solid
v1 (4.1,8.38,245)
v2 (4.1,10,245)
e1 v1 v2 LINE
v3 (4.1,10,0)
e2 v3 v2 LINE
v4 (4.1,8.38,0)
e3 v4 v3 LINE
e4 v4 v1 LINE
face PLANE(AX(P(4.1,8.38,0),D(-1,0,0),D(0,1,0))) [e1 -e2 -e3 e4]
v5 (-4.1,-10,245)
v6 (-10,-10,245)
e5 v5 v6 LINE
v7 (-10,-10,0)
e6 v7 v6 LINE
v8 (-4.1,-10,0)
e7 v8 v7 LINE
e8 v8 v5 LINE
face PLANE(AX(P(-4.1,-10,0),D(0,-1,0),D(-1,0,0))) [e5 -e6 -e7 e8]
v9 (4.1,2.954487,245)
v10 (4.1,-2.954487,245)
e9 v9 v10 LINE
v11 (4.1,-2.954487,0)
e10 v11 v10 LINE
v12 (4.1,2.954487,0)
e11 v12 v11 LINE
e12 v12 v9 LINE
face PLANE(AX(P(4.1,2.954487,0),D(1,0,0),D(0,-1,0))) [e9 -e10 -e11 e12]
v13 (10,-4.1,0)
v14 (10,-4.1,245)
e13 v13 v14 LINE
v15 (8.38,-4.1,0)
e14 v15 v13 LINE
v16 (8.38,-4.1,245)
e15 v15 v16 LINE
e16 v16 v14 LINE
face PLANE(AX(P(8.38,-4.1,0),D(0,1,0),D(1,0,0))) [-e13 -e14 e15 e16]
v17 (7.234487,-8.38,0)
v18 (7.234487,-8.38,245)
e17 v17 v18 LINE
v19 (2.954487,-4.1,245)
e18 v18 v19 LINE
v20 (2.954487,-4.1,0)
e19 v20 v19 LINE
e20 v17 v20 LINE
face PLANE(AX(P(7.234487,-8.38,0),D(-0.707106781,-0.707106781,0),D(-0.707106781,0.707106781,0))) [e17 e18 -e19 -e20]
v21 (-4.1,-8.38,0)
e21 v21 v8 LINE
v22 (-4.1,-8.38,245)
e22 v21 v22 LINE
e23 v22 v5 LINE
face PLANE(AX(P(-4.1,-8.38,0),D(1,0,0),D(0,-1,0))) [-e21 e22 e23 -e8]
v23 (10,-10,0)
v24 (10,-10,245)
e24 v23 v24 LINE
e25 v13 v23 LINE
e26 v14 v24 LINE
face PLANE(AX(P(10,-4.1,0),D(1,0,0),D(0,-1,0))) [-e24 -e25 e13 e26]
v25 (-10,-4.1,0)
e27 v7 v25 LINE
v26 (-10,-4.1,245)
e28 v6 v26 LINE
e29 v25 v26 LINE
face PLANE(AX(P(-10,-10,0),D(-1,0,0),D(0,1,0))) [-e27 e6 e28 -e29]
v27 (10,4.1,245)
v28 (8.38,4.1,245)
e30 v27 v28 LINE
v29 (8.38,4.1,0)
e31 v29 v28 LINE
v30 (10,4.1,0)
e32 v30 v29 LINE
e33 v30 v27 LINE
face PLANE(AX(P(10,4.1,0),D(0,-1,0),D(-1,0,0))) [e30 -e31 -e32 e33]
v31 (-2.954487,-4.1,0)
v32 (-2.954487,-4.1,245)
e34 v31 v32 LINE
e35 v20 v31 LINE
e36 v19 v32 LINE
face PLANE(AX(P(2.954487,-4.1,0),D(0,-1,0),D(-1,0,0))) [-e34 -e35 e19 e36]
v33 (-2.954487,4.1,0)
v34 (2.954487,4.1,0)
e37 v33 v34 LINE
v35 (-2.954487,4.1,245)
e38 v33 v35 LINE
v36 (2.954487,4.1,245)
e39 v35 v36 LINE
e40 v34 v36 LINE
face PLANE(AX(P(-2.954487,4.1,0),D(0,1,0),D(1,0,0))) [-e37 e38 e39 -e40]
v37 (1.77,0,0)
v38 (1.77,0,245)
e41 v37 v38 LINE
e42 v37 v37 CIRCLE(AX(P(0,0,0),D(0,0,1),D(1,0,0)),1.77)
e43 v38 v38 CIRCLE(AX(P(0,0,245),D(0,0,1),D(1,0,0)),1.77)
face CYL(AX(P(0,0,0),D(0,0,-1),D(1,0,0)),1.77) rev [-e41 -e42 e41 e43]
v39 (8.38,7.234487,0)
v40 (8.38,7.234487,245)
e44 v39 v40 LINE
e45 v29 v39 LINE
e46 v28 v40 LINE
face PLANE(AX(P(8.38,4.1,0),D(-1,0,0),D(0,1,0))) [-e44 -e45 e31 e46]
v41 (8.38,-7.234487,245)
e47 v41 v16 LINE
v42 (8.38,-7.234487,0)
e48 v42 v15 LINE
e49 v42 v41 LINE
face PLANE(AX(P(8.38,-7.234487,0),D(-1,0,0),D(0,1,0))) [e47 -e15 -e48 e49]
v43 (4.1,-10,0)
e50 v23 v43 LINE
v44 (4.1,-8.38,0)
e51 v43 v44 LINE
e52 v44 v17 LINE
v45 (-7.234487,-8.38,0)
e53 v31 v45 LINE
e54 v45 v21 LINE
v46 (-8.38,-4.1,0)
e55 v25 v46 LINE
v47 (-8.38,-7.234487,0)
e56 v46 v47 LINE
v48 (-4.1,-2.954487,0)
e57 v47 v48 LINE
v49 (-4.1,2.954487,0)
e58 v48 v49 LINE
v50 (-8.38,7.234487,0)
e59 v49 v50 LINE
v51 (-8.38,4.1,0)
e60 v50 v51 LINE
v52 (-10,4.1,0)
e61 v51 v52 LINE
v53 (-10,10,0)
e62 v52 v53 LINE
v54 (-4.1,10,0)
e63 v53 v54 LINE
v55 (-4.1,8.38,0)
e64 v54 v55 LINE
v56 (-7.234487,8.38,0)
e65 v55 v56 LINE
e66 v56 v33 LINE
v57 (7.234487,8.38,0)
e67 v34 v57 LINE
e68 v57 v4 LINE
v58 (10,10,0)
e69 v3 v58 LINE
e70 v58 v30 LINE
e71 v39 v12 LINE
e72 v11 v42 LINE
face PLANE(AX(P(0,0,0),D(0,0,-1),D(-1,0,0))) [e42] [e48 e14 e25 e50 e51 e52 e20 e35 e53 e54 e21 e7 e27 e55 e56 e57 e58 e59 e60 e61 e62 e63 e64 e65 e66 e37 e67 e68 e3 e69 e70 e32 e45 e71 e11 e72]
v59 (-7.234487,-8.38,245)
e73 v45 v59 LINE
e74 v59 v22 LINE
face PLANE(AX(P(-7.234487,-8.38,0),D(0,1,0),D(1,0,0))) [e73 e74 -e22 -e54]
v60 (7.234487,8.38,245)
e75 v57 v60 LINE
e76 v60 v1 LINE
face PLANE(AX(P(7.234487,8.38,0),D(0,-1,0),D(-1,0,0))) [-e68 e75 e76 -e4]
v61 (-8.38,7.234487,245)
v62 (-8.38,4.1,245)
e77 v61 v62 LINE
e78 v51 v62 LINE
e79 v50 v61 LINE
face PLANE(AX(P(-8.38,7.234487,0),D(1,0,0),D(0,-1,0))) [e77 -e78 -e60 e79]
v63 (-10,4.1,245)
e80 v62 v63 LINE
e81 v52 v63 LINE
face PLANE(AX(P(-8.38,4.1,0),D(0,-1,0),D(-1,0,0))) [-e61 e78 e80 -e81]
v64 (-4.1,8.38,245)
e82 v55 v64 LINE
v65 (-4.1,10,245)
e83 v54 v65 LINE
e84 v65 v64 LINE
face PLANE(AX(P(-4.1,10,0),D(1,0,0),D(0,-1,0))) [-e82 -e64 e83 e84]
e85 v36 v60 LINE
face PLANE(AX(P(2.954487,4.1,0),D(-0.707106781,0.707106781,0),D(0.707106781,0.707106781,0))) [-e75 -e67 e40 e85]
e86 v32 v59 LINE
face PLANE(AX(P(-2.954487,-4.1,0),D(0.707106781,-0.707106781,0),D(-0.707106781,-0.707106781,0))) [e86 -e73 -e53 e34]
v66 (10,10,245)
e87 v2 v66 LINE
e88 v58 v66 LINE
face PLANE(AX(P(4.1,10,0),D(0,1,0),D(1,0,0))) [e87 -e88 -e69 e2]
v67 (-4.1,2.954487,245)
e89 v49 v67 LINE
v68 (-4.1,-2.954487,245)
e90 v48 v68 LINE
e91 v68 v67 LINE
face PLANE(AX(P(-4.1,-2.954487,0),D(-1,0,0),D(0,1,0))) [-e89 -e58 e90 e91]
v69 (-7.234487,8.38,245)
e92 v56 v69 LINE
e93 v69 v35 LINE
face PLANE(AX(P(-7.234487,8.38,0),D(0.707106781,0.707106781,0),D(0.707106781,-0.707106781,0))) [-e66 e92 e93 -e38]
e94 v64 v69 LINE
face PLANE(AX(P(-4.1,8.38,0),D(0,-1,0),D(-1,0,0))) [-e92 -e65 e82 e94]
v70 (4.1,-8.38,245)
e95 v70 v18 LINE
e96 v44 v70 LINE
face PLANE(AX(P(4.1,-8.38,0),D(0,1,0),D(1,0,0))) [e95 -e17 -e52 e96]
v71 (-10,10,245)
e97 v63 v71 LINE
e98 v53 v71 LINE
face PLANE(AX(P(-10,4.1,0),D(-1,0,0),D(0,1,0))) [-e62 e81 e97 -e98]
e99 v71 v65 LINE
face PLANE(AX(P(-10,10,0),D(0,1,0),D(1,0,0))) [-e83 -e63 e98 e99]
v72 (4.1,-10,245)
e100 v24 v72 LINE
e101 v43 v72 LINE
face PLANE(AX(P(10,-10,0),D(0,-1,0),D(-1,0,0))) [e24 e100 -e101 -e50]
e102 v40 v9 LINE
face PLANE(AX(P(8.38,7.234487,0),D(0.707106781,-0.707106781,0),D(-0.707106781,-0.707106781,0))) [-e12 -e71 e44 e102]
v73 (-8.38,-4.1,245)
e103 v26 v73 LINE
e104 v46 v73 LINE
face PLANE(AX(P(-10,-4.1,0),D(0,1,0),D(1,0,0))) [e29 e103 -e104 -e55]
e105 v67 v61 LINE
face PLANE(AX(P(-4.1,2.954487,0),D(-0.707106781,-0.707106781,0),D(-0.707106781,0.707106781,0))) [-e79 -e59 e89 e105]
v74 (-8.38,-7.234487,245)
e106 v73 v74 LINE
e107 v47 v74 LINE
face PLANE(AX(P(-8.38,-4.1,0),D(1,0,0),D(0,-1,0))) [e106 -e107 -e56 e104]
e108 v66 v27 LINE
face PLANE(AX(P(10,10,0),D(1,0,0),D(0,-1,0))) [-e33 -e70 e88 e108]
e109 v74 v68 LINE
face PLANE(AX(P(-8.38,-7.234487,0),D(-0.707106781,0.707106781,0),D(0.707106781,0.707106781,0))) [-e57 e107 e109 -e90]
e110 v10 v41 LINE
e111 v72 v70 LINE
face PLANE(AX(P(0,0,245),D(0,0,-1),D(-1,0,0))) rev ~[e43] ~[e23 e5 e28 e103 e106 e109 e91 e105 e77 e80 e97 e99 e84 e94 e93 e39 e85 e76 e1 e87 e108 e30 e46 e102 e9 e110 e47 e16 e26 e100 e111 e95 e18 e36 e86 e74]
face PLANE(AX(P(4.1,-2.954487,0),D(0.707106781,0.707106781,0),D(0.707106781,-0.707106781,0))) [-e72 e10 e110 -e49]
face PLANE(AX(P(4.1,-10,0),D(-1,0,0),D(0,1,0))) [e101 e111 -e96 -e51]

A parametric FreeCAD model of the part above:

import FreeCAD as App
import Part
import Sketcher
Q = App.Units.Quantity


def add_polygon(sketch, points):
    """Adds a closed chain of lines whose ends are joined by coincident constraints."""
    first, n = sketch.GeometryCount, len(points)
    for a, b in zip(points, points[1:] + points[:1]):
        sketch.addGeometry(Part.LineSegment(App.Vector(*a, 0), App.Vector(*b, 0)), False)
    for i in range(n):
        sketch.addConstraint(Sketcher.Constraint("Coincident", first + i, 2, first + (i + 1) % n, 1))

doc = App.newDocument("Part")
body = doc.addObject("PartDesign::Body", "Body")

sketch1 = doc.addObject("Sketcher::SketchObject", "Sketch")
body.addObject(sketch1)
sketch1.AttachmentSupport = (doc.XY_Plane, [""])
sketch1.MapMode = "FlatFace"
add_polygon(sketch1, [(-10, 4.1), (-8.4, 4.1), (-8.4, 7.2), (-4.1, 3), (-4.1, -3), (-8.4, -7.2), (-8.4, -4.1), (-10, -4.1), (-10, -10), (-4.1, -10), (-4.1, -8.4), (-7.2, -8.4), (-3, -4.1), (3, -4.1), (7.2, -8.4), (4.1, -8.4), (4.1, -10), (10, -10), (10, -4.1), (8.4, -4.1), (8.4, -7.2), (4.1, -3), (4.1, 3), (8.4, 7.2), (8.4, 4.1), (10, 4.1), (10, 10), (4.1, 10), (4.1, 8.4), (7.2, 8.4), (3, 4.1), (-3, 4.1), (-7.2, 8.4), (-4.1, 8.4), (-4.1, 10), (-10, 10)])
sketch1.addGeometry(Part.Circle(App.Vector(0, 0, 0), App.Vector(0, 0, 1), 1.8), False)
sketch1.addConstraint(Sketcher.Constraint("Horizontal", 0))
sketch1.addConstraint(Sketcher.Constraint("Vertical", 1))
sketch1.addConstraint(Sketcher.Constraint("Vertical", 3))
sketch1.addConstraint(Sketcher.Constraint("Vertical", 5))
sketch1.addConstraint(Sketcher.Constraint("Horizontal", 6))
sketch1.addConstraint(Sketcher.Constraint("Vertical", 7))
sketch1.addConstraint(Sketcher.Constraint("Horizontal", 8))
sketch1.addConstraint(Sketcher.Constraint("Vertical", 9))
sketch1.addConstraint(Sketcher.Constraint("Horizontal", 10))
sketch1.addConstraint(Sketcher.Constraint("Horizontal", 12))
sketch1.addConstraint(Sketcher.Constraint("Horizontal", 14))
sketch1.addConstraint(Sketcher.Constraint("Vertical", 15))
sketch1.addConstraint(Sketcher.Constraint("Horizontal", 16))
sketch1.addConstraint(Sketcher.Constraint("Vertical", 17))
sketch1.addConstraint(Sketcher.Constraint("Horizontal", 18))
sketch1.addConstraint(Sketcher.Constraint("Vertical", 19))
sketch1.addConstraint(Sketcher.Constraint("Vertical", 21))
sketch1.addConstraint(Sketcher.Constraint("Vertical", 23))
sketch1.addConstraint(Sketcher.Constraint("Horizontal", 24))
sketch1.addConstraint(Sketcher.Constraint("Vertical", 25))
sketch1.addConstraint(Sketcher.Constraint("Horizontal", 26))
sketch1.addConstraint(Sketcher.Constraint("Vertical", 27))
sketch1.addConstraint(Sketcher.Constraint("Horizontal", 28))
sketch1.addConstraint(Sketcher.Constraint("Horizontal", 30))
sketch1.addConstraint(Sketcher.Constraint("Horizontal", 32))
sketch1.addConstraint(Sketcher.Constraint("Vertical", 33))
sketch1.addConstraint(Sketcher.Constraint("Horizontal", 34))
sketch1.addConstraint(Sketcher.Constraint("Vertical", 35))
sketch1.addConstraint(Sketcher.Constraint("Coincident", 36, 3, -1, 1))
sketch1.addConstraint(Sketcher.Constraint("Symmetric", 0, 2, 18, 2, -1, 1))
sketch1.addConstraint(Sketcher.Constraint("Symmetric", 2, 2, 20, 2, -1, 1))
sketch1.addConstraint(Sketcher.Constraint("Symmetric", 4, 2, 22, 2, -1, 1))
sketch1.addConstraint(Sketcher.Constraint("Symmetric", 6, 2, 24, 2, -1, 1))
sketch1.addConstraint(Sketcher.Constraint("Symmetric", 8, 2, 26, 2, -1, 1))
sketch1.addConstraint(Sketcher.Constraint("Symmetric", 10, 2, 28, 2, -1, 1))
sketch1.addConstraint(Sketcher.Constraint("Symmetric", 11, 2, 29, 2, -1, 1))
sketch1.addConstraint(Sketcher.Constraint("Symmetric", 13, 2, 31, 2, -1, 1))
sketch1.addConstraint(Sketcher.Constraint("Symmetric", 15, 2, 33, 2, -1, 1))
sketch1.addConstraint(Sketcher.Constraint("Symmetric", 10, 2, 13, 2, -2))
sketch1.addConstraint(Sketcher.Constraint("Symmetric", 8, 2, 15, 2, -2))
sketch1.addConstraint(Sketcher.Constraint("Symmetric", 6, 2, 17, 2, -2))
sketch1.addConstraint(Sketcher.Constraint("Symmetric", 4, 2, 19, 2, -2))
sketch1.addConstraint(Sketcher.Constraint("Perpendicular", 2, 4))
sketch1.addConstraint(Sketcher.Constraint("Parallel", 4, 11))
sketch1.addConstraint(Sketcher.Constraint("Perpendicular", 11, 13))
sketch1.addConstraint(Sketcher.Constraint("Parallel", 13, 20))
sketch1.addConstraint(Sketcher.Constraint("Perpendicular", 20, 22))
sketch1.addConstraint(Sketcher.Constraint("Perpendicular", 29, 31))
sketch1.addConstraint(Sketcher.Constraint("Horizontal", 6, 2, 11, 2))
sketch1.addConstraint(Sketcher.Constraint("Horizontal", 3, 2, 20, 2))
sketch1.addConstraint(Sketcher.Constraint("Vertical", 3, 2, 8, 2))
sketch1.addConstraint(Sketcher.Constraint("Vertical", 7, 2, 34, 2))
sketch1.addConstraint(Sketcher.Constraint("Equal", 32, 1))
sketch1.addConstraint(Sketcher.Constraint("Equal", 30, 3))
sketch1.addConstraint(Sketcher.Constraint("Equal", 34, 7))
sketch1.addConstraint(Sketcher.Constraint("Equal", 24, 9))
sketch1.addConstraint(Sketcher.Constraint("Diameter", 36, Q("3.54 mm")))
sketch1.addConstraint(Sketcher.Constraint("DistanceX", 8, 1, 8, 2, Q("5.9 mm")))
sketch1.addConstraint(Sketcher.Constraint("DistanceX", 6, 2, -1, 1, Q("10 mm")))
sketch1.addConstraint(Sketcher.Constraint("DistanceX", 0, 1, 0, 2, Q("1.62 mm")))
sketch1.addConstraint(Sketcher.Constraint("DistanceX", 10, 2, 10, 1, Q("3.134487 mm")))
pad1 = doc.addObject("PartDesign::Pad", "Pad")
body.addObject(pad1)
pad1.Profile = sketch1
pad1.Length = 245

doc.recompute()
